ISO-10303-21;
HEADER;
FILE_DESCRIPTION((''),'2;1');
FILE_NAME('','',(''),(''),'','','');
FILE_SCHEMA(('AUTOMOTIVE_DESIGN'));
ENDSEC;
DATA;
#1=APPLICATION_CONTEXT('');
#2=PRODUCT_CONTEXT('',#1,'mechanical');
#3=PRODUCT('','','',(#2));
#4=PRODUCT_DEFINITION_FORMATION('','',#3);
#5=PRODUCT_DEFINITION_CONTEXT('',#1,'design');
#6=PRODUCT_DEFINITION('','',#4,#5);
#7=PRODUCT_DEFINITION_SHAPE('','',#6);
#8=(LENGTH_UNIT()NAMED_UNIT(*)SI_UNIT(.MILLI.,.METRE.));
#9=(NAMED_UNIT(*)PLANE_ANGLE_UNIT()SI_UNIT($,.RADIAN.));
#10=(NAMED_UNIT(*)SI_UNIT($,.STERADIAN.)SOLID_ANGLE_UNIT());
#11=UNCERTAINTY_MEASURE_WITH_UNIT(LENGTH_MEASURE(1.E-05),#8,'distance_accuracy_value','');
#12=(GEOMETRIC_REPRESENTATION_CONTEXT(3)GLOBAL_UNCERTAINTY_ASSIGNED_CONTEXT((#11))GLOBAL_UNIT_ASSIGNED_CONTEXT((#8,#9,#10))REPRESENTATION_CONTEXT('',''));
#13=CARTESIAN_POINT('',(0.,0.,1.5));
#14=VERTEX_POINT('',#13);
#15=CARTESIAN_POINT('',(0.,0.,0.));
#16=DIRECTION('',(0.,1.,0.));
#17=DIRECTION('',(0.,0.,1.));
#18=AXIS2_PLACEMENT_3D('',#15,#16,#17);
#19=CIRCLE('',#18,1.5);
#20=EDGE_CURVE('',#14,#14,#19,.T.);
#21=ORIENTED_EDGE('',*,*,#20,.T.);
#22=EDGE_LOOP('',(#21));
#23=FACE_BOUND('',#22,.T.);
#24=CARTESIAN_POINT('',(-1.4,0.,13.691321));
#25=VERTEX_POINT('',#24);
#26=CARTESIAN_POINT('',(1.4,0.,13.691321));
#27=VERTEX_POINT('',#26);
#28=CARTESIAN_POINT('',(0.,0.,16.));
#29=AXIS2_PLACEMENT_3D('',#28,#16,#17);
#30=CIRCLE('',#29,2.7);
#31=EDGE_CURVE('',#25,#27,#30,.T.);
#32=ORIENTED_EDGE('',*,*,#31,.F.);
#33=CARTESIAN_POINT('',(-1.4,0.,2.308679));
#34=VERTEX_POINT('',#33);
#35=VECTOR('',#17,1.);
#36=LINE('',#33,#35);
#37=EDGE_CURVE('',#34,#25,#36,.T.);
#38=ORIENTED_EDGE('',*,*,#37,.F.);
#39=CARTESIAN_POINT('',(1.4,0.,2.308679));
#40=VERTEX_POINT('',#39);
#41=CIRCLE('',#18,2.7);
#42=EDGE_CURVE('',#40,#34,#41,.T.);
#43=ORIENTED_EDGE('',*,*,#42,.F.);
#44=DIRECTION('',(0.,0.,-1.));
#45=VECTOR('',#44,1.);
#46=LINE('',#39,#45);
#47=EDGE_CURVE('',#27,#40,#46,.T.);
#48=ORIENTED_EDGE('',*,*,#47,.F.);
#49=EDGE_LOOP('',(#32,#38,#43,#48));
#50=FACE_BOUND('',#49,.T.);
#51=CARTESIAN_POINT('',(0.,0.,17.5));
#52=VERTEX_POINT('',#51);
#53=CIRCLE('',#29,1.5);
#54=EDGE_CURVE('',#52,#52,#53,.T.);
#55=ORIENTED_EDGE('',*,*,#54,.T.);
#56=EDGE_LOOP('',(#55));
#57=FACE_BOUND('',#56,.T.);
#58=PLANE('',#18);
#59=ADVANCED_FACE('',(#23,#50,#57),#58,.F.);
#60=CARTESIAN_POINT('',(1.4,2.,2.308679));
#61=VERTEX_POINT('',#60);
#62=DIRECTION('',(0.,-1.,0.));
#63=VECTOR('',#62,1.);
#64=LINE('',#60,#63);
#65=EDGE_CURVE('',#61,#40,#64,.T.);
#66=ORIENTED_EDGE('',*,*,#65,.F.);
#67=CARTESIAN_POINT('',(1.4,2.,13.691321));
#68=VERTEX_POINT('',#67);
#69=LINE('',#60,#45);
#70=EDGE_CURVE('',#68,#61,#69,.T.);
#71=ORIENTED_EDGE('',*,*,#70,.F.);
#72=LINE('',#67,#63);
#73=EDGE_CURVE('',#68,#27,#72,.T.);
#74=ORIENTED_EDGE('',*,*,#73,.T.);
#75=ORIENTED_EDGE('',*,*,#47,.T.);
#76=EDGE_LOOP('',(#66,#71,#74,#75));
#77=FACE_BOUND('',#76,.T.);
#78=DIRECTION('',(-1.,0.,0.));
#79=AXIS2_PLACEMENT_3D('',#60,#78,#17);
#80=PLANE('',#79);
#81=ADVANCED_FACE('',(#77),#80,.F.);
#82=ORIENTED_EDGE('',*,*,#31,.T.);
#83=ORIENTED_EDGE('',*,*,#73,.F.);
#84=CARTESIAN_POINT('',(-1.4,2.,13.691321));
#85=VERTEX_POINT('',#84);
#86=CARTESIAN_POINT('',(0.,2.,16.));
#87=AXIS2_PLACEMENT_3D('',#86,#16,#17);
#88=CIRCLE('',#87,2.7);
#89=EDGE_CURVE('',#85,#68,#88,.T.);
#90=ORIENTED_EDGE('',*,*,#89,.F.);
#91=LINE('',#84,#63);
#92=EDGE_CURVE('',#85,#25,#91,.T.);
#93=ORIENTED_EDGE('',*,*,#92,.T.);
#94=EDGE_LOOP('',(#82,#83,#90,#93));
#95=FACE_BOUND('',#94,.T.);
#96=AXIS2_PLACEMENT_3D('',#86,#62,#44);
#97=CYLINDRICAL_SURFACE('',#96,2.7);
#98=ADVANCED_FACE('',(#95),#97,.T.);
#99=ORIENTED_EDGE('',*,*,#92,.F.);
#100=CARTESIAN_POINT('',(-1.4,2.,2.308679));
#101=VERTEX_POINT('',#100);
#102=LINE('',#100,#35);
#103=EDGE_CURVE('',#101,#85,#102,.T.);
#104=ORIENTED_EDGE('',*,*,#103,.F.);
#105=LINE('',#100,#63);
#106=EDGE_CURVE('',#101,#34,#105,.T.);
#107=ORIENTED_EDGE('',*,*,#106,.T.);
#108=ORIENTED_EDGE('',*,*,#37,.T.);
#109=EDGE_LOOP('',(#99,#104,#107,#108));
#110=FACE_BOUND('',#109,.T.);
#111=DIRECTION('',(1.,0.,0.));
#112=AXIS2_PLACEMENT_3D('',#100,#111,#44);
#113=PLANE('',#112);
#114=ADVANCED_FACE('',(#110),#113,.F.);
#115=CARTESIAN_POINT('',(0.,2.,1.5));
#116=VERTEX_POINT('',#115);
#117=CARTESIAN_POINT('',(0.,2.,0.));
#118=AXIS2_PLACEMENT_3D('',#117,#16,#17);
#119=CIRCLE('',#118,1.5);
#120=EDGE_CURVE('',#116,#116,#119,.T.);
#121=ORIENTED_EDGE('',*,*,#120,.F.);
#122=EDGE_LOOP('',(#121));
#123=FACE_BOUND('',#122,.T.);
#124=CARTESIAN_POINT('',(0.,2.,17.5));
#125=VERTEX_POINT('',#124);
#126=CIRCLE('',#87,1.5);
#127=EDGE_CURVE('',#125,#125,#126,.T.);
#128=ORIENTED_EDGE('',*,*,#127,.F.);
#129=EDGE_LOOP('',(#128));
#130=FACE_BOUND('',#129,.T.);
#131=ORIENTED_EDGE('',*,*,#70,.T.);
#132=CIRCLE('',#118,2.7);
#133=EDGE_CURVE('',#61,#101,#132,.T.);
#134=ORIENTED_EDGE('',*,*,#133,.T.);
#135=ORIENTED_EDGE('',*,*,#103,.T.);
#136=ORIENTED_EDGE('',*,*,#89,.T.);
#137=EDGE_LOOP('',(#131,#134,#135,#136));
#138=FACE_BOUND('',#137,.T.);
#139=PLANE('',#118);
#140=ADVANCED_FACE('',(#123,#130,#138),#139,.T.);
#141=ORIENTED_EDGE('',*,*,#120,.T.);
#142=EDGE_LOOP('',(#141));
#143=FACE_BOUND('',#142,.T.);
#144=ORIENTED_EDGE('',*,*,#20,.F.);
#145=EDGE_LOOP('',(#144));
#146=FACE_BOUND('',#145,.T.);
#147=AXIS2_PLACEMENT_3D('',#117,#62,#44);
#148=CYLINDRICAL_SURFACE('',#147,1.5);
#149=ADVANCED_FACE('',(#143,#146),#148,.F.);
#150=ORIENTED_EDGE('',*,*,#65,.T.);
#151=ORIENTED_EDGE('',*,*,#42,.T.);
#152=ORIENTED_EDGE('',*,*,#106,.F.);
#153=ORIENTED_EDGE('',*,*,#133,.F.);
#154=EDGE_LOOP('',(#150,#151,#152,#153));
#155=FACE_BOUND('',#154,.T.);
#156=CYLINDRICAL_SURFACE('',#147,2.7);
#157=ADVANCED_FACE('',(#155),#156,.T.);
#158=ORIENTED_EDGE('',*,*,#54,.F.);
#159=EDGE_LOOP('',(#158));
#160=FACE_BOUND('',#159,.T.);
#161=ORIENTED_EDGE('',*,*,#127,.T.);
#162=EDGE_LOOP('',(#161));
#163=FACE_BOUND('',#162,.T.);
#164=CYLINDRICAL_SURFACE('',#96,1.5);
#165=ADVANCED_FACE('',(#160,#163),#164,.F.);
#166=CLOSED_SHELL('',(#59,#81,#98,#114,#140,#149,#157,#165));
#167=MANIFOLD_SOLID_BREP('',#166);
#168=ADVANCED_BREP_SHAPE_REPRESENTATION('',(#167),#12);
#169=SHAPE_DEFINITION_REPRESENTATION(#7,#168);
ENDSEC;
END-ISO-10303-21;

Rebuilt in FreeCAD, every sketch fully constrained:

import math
import FreeCAD as App
import Part
import Sketcher

V = App.Vector
Q = App.Units.Quantity

doc = App.newDocument("Part")
body = doc.addObject("PartDesign::Body", "Body")

# Sketch on XZ plane
sketch1 = body.newObject("Sketcher::SketchObject", "Sketch")
sketch1.AttachmentSupport = (doc.getObject("XZ_Plane"), [""])
sketch1.MapMode = "FlatFace"
sketch1.addGeometry([
    Part.LineSegment(V(-1.4, 2.3, 0), V(-1.4, 13.7, 0)),  # 0
    Part.ArcOfCircle(Part.Circle(V(0, 16, 0), V(0, 0, 1), 2.7), math.radians(-59), math.radians(239)),  # 1
    Part.LineSegment(V(1.4, 13.7, 0), V(1.4, 2.3, 0)),  # 2
    Part.ArcOfCircle(Part.Circle(V(0, 0, 0), V(0, 0, 1), 2.7), math.radians(121), math.radians(419)),  # 3
    Part.Circle(V(0, 16, 0), V(0, 0, 1), 1.5),  # 4
    Part.Circle(V(0, 0, 0), V(0, 0, 1), 1.5),  # 5
], False)
sketch1.addConstraint([
    Sketcher.Constraint("Coincident", 0, 2, 1, 2),
    Sketcher.Constraint("Coincident", 1, 1, 2, 1),
    Sketcher.Constraint("Coincident", 2, 2, 3, 2),
    Sketcher.Constraint("Coincident", 3, 1, 0, 1),
    Sketcher.Constraint("Vertical", 0),
    Sketcher.Constraint("Vertical", 2),
    Sketcher.Constraint("Coincident", 3, 3, -1, 1),
    Sketcher.Constraint("Coincident", 5, 3, -1, 1),
    Sketcher.Constraint("Coincident", 4, 3, 1, 3),
    Sketcher.Constraint("Equal", 1, 3),
    Sketcher.Constraint("Equal", 4, 5),
    Sketcher.Constraint("Symmetric", 0, 2, 1, 1, -2),
    Sketcher.Constraint("Diameter", 4, Q("3 mm")),
    Sketcher.Constraint("Radius", 1, Q("2.7 mm")),
    Sketcher.Constraint("DistanceY", -1, 1, 1, 3, Q("16 mm")),
    Sketcher.Constraint("DistanceX", 0, 2, -1, 1, Q("1.4 mm")),
])
pad1 = body.newObject("PartDesign::Pad", "Pad")
pad1.Profile = sketch1
pad1.Length = 2
pad1.Reversed = True

doc.recompute()
